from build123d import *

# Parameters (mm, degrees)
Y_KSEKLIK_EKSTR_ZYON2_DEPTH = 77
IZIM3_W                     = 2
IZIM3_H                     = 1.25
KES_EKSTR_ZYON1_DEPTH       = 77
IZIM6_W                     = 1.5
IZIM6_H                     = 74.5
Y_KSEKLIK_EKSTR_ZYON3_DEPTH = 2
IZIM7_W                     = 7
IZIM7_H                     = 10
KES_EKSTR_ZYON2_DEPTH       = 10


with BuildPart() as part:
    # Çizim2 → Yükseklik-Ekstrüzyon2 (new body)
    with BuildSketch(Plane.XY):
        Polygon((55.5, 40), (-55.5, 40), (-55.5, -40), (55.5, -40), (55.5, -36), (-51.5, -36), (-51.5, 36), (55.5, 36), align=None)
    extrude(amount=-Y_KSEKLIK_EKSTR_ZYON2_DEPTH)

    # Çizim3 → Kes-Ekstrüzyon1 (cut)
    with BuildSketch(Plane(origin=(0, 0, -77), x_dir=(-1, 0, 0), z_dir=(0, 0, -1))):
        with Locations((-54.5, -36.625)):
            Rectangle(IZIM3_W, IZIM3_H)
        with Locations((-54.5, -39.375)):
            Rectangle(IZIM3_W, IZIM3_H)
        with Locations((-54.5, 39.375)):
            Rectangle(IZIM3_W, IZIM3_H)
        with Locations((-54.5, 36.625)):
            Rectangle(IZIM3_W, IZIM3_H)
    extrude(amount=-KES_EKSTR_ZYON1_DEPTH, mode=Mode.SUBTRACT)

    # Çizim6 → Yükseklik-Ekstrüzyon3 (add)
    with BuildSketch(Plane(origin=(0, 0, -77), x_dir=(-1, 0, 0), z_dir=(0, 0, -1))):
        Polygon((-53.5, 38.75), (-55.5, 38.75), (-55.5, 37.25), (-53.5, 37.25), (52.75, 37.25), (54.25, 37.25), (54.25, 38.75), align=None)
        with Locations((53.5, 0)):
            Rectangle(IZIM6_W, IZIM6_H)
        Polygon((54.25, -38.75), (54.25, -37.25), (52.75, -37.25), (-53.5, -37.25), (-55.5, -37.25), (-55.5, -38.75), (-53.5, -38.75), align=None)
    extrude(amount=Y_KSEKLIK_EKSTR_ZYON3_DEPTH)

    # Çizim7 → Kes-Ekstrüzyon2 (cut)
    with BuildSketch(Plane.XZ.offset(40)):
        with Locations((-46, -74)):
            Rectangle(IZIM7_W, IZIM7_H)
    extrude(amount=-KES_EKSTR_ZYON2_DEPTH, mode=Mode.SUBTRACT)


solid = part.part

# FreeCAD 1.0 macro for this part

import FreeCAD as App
import Part
import Sketcher
from FreeCAD import Vector
Q = App.Units.Quantity

doc = App.newDocument("Part")
body = doc.addObject("PartDesign::Body", "Body")

# Sketch on XY plane
sketch1 = body.newObject("Sketcher::SketchObject", "Sketch")
sketch1.AttachmentSupport = (doc.getObject("XY_Plane"), [""])
sketch1.MapMode = "FlatFace"
sketch1.addGeometry(Part.LineSegment(Vector(55.5, 40, 0), Vector(-55.5, 40, 0)), False)
sketch1.addGeometry(Part.LineSegment(Vector(-55.5, 40, 0), Vector(-55.5, -40, 0)), False)
sketch1.addGeometry(Part.LineSegment(Vector(-55.5, -40, 0), Vector(55.5, -40, 0)), False)
sketch1.addGeometry(Part.LineSegment(Vector(55.5, -40, 0), Vector(55.5, -36, 0)), False)
sketch1.addGeometry(Part.LineSegment(Vector(55.5, -36, 0), Vector(-51.5, -36, 0)), False)
sketch1.addGeometry(Part.LineSegment(Vector(-51.5, -36, 0), Vector(-51.5, 36, 0)), False)
sketch1.addGeometry(Part.LineSegment(Vector(-51.5, 36, 0), Vector(55.5, 36, 0)), False)
sketch1.addGeometry(Part.LineSegment(Vector(55.5, 36, 0), Vector(55.5, 40, 0)), False)
sketch1.addConstraint(Sketcher.Constraint("Coincident", 0, 2, 1, 1))
sketch1.addConstraint(Sketcher.Constraint("Coincident", 1, 2, 2, 1))
sketch1.addConstraint(Sketcher.Constraint("Coincident", 2, 2, 3, 1))
sketch1.addConstraint(Sketcher.Constraint("Coincident", 3, 2, 4, 1))
sketch1.addConstraint(Sketcher.Constraint("Coincident", 4, 2, 5, 1))
sketch1.addConstraint(Sketcher.Constraint("Coincident", 5, 2, 6, 1))
sketch1.addConstraint(Sketcher.Constraint("Coincident", 6, 2, 7, 1))
sketch1.addConstraint(Sketcher.Constraint("Coincident", 7, 2, 0, 1))
sketch1.addConstraint(Sketcher.Constraint("Horizontal", 0))
sketch1.addConstraint(Sketcher.Constraint("Vertical", 1))
sketch1.addConstraint(Sketcher.Constraint("Horizontal", 2))
sketch1.addConstraint(Sketcher.Constraint("Vertical", 3))
sketch1.addConstraint(Sketcher.Constraint("Horizontal", 4))
sketch1.addConstraint(Sketcher.Constraint("Vertical", 5))
sketch1.addConstraint(Sketcher.Constraint("Horizontal", 6))
sketch1.addConstraint(Sketcher.Constraint("Vertical", 7))
sketch1.addConstraint(Sketcher.Constraint("Symmetric", 0, 2, 2, 2, -1, 1))
sketch1.addConstraint(Sketcher.Constraint("Symmetric", 3, 2, 6, 2, -1))
sketch1.addConstraint(Sketcher.Constraint("DistanceX", 0, 2, 0, 1, Q("111 mm")))
sketch1.addConstraint(Sketcher.Constraint("DistanceX", 4, 2, 4, 1, Q("107 mm")))
sketch1.addConstraint(Sketcher.Constraint("DistanceY", 1, 2, 1, 1, Q("80 mm")))
sketch1.addConstraint(Sketcher.Constraint("DistanceY", 3, 1, 3, 2, Q("4 mm")))
pad1 = body.newObject("PartDesign::Pad", "Pad")
pad1.Profile = sketch1
pad1.Length = 77
pad1.Reversed = True

# Sketch on XY plane
sketch2 = body.newObject("Sketcher::SketchObject", "Sketch001")
sketch2.AttachmentSupport = (doc.getObject("XY_Plane"), [""])
sketch2.MapMode = "FlatFace"
sketch2.AttachmentOffset = App.Placement(Vector(0, 0, -77), App.Rotation())
sketch2.addGeometry(Part.LineSegment(Vector(55.5, -36, 0), Vector(55.5, -37.2, 0)), False)
sketch2.addGeometry(Part.LineSegment(Vector(55.5, -37.2, 0), Vector(53.5, -37.2, 0)), False)
sketch2.addGeometry(Part.LineSegment(Vector(53.5, -37.2, 0), Vector(53.5, -36, 0)), False)
sketch2.addGeometry(Part.LineSegment(Vector(53.5, -36, 0), Vector(55.5, -36, 0)), False)
sketch2.addGeometry(Part.LineSegment(Vector(55.5, -38.8, 0), Vector(55.5, -40, 0)), False)
sketch2.addGeometry(Part.LineSegment(Vector(55.5, -40, 0), Vector(53.5, -40, 0)), False)
sketch2.addGeometry(Part.LineSegment(Vector(53.5, -40, 0), Vector(53.5, -38.8, 0)), False)
sketch2.addGeometry(Part.LineSegment(Vector(53.5, -38.8, 0), Vector(55.5, -38.8, 0)), False)
sketch2.addGeometry(Part.LineSegment(Vector(55.5, 40, 0), Vector(55.5, 38.8, 0)), False)
sketch2.addGeometry(Part.LineSegment(Vector(55.5, 38.8, 0), Vector(53.5, 38.8, 0)), False)
sketch2.addGeometry(Part.LineSegment(Vector(53.5, 38.8, 0), Vector(53.5, 40, 0)), False)
sketch2.addGeometry(Part.LineSegment(Vector(53.5, 40, 0), Vector(55.5, 40, 0)), False)
sketch2.addGeometry(Part.LineSegment(Vector(55.5, 37.2, 0), Vector(55.5, 36, 0)), False)
sketch2.addGeometry(Part.LineSegment(Vector(55.5, 36, 0), Vector(53.5, 36, 0)), False)
sketch2.addGeometry(Part.LineSegment(Vector(53.5, 36, 0), Vector(53.5, 37.2, 0)), False)
sketch2.addGeometry(Part.LineSegment(Vector(53.5, 37.2, 0), Vector(55.5, 37.2, 0)), False)
sketch2.addConstraint(Sketcher.Constraint("Coincident", 0, 2, 1, 1))
sketch2.addConstraint(Sketcher.Constraint("Coincident", 1, 2, 2, 1))
sketch2.addConstraint(Sketcher.Constraint("Coincident", 2, 2, 3, 1))
sketch2.addConstraint(Sketcher.Constraint("Coincident", 3, 2, 0, 1))
sketch2.addConstraint(Sketcher.Constraint("Coincident", 4, 2, 5, 1))
sketch2.addConstraint(Sketcher.Constraint("Coincident", 5, 2, 6, 1))
sketch2.addConstraint(Sketcher.Constraint("Coincident", 6, 2, 7, 1))
sketch2.addConstraint(Sketcher.Constraint("Coincident", 7, 2, 4, 1))
sketch2.addConstraint(Sketcher.Constraint("Coincident", 8, 2, 9, 1))
sketch2.addConstraint(Sketcher.Constraint("Coincident", 9, 2, 10, 1))
sketch2.addConstraint(Sketcher.Constraint("Coincident", 10, 2, 11, 1))
sketch2.addConstraint(Sketcher.Constraint("Coincident", 11, 2, 8, 1))
sketch2.addConstraint(Sketcher.Constraint("Coincident", 12, 2, 13, 1))
sketch2.addConstraint(Sketcher.Constraint("Coincident", 13, 2, 14, 1))
sketch2.addConstraint(Sketcher.Constraint("Coincident", 14, 2, 15, 1))
sketch2.addConstraint(Sketcher.Constraint("Coincident", 15, 2, 12, 1))
sketch2.addConstraint(Sketcher.Constraint("Vertical", 0))
sketch2.addConstraint(Sketcher.Constraint("Horizontal", 1))
sketch2.addConstraint(Sketcher.Constraint("Vertical", 2))
sketch2.addConstraint(Sketcher.Constraint("Horizontal", 3))
sketch2.addConstraint(Sketcher.Constraint("Vertical", 4))
sketch2.addConstraint(Sketcher.Constraint("Horizontal", 5))
sketch2.addConstraint(Sketcher.Constraint("Vertical", 6))
sketch2.addConstraint(Sketcher.Constraint("Horizontal", 7))
sketch2.addConstraint(Sketcher.Constraint("Vertical", 8))
sketch2.addConstraint(Sketcher.Constraint("Horizontal", 9))
sketch2.addConstraint(Sketcher.Constraint("Vertical", 10))
sketch2.addConstraint(Sketcher.Constraint("Horizontal", 11))
sketch2.addConstraint(Sketcher.Constraint("Vertical", 12))
sketch2.addConstraint(Sketcher.Constraint("Horizontal", 13))
sketch2.addConstraint(Sketcher.Constraint("Vertical", 14))
sketch2.addConstraint(Sketcher.Constraint("Horizontal", 15))
sketch2.addConstraint(Sketcher.Constraint("Symmetric", 7, 2, 8, 2, -1))
sketch2.addConstraint(Sketcher.Constraint("Symmetric", 5, 2, 10, 2, -1))
sketch2.addConstraint(Sketcher.Constraint("Symmetric", 3, 2, 12, 2, -1))
sketch2.addConstraint(Sketcher.Constraint("Symmetric", 1, 2, 14, 2, -1))
sketch2.addConstraint(Sketcher.Constraint("Vertical", 3, 2, 4, 2))
sketch2.addConstraint(Sketcher.Constraint("Vertical", 2, 2, 5, 2))
sketch2.addConstraint(Sketcher.Constraint("Equal", 2, 4))
sketch2.addConstraint(Sketcher.Constraint("DistanceX", 1, 2, 1, 1, Q("2 mm")))
sketch2.addConstraint(Sketcher.Constraint("DistanceY", 2, 2, -1, 1, Q("36 mm")))
sketch2.addConstraint(Sketcher.Constraint("DistanceY", 4, 2, -1, 1, Q("40 mm")))
sketch2.addConstraint(Sketcher.Constraint("DistanceY", 0, 2, 0, 1, Q("1.25 mm")))
sketch2.addConstraint(Sketcher.Constraint("DistanceX", -1, 1, 0, 2, Q("55.5 mm")))
pocket1 = body.newObject("PartDesign::Pocket", "Pocket")
pocket1.Profile = sketch2
pocket1.Length = 77
pocket1.Reversed = True

# Sketch on XY plane
sketch3 = body.newObject("Sketcher::SketchObject", "Sketch002")
sketch3.AttachmentSupport = (doc.getObject("XY_Plane"), [""])
sketch3.MapMode = "FlatFace"
sketch3.AttachmentOffset = App.Placement(Vector(0, 0, -77), App.Rotation())
sketch3.addGeometry(Part.LineSegment(Vector(55.5, 38.8, 0), Vector(55.5, 37.2, 0)), False)
sketch3.addGeometry(Part.LineSegment(Vector(55.5, 37.2, 0), Vector(-52.8, 37.2, 0)), False)
sketch3.addGeometry(Part.LineSegment(Vector(-52.8, 37.2, 0), Vector(-52.8, -37.2, 0)), False)
sketch3.addGeometry(Part.LineSegment(Vector(-52.8, -37.2, 0), Vector(55.5, -37.2, 0)), False)
sketch3.addGeometry(Part.LineSegment(Vector(55.5, -37.2, 0), Vector(55.5, -38.8, 0)), False)
sketch3.addGeometry(Part.LineSegment(Vector(55.5, -38.8, 0), Vector(-54.2, -38.8, 0)), False)
sketch3.addGeometry(Part.LineSegment(Vector(-54.2, -38.8, 0), Vector(-54.2, 38.8, 0)), False)
sketch3.addGeometry(Part.LineSegment(Vector(-54.2, 38.8, 0), Vector(55.5, 38.8, 0)), False)
sketch3.addConstraint(Sketcher.Constraint("Coincident", 0, 2, 1, 1))
sketch3.addConstraint(Sketcher.Constraint("Coincident", 1, 2, 2, 1))
sketch3.addConstraint(Sketcher.Constraint("Coincident", 2, 2, 3, 1))
sketch3.addConstraint(Sketcher.Constraint("Coincident", 3, 2, 4, 1))
sketch3.addConstraint(Sketcher.Constraint("Coincident", 4, 2, 5, 1))
sketch3.addConstraint(Sketcher.Constraint("Coincident", 5, 2, 6, 1))
sketch3.addConstraint(Sketcher.Constraint("Coincident", 6, 2, 7, 1))
sketch3.addConstraint(Sketcher.Constraint("Coincident", 7, 2, 0, 1))
sketch3.addConstraint(Sketcher.Constraint("Vertical", 0))
sketch3.addConstraint(Sketcher.Constraint("Horizontal", 1))
sketch3.addConstraint(Sketcher.Constraint("Vertical", 2))
sketch3.addConstraint(Sketcher.Constraint("Horizontal", 3))
sketch3.addConstraint(Sketcher.Constraint("Vertical", 4))
sketch3.addConstraint(Sketcher.Constraint("Horizontal", 5))
sketch3.addConstraint(Sketcher.Constraint("Vertical", 6))
sketch3.addConstraint(Sketcher.Constraint("Horizontal", 7))
sketch3.addConstraint(Sketcher.Constraint("Symmetric", 0, 2, 3, 2, -1))
sketch3.addConstraint(Sketcher.Constraint("Equal", 0, 4))
sketch3.addConstraint(Sketcher.Constraint("DistanceY", 0, 2, 0, 1, Q("1.5 mm")))
sketch3.addConstraint(Sketcher.Constraint("DistanceY", 2, 2, 2, 1, Q("74.5 mm")))
sketch3.addConstraint(Sketcher.Constraint("DistanceX", 1, 2, 1, 1, Q("108.25 mm")))
sketch3.addConstraint(Sketcher.Constraint("DistanceX", 5, 2, 5, 1, Q("109.75 mm")))
sketch3.addConstraint(Sketcher.Constraint("DistanceX", -1, 1, 0, 2, Q("55.5 mm")))
pad2 = body.newObject("PartDesign::Pad", "Pad001")
pad2.Profile = sketch3
pad2.Length = 2
pad2.Reversed = True

# Sketch on XZ plane
sketch4 = body.newObject("Sketcher::SketchObject", "Sketch003")
sketch4.AttachmentSupport = (doc.getObject("XZ_Plane"), [""])
sketch4.MapMode = "FlatFace"
sketch4.AttachmentOffset = App.Placement(Vector(0, 0, 40), App.Rotation())
sketch4.addGeometry(Part.LineSegment(Vector(-50, -69, 0), Vector(-50, -79, 0)), False)
sketch4.addGeometry(Part.LineSegment(Vector(-50, -79, 0), Vector(-42, -79, 0)), False)
sketch4.addGeometry(Part.LineSegment(Vector(-42, -79, 0), Vector(-42, -69, 0)), False)
sketch4.addGeometry(Part.LineSegment(Vector(-42, -69, 0), Vector(-50, -69, 0)), False)
sketch4.addConstraint(Sketcher.Constraint("Coincident", 0, 2, 1, 1))
sketch4.addConstraint(Sketcher.Constraint("Coincident", 1, 2, 2, 1))
sketch4.addConstraint(Sketcher.Constraint("Coincident", 2, 2, 3, 1))
sketch4.addConstraint(Sketcher.Constraint("Coincident", 3, 2, 0, 1))
sketch4.addConstraint(Sketcher.Constraint("Vertical", 0))
sketch4.addConstraint(Sketcher.Constraint("Horizontal", 1))
sketch4.addConstraint(Sketcher.Constraint("Vertical", 2))
sketch4.addConstraint(Sketcher.Constraint("Horizontal", 3))
sketch4.addConstraint(Sketcher.Constraint("DistanceX", 1, 1, 1, 2, Q("7 mm")))
sketch4.addConstraint(Sketcher.Constraint("DistanceY", 0, 2, 0, 1, Q("10 mm")))
sketch4.addConstraint(Sketcher.Constraint("DistanceY", 0, 2, -1, 1, Q("79 mm")))
sketch4.addConstraint(Sketcher.Constraint("DistanceX", 0, 2, -1, 1, Q("49.5 mm")))
pocket2 = body.newObject("PartDesign::Pocket", "Pocket001")
pocket2.Profile = sketch4
pocket2.Length = 10

doc.recompute()
